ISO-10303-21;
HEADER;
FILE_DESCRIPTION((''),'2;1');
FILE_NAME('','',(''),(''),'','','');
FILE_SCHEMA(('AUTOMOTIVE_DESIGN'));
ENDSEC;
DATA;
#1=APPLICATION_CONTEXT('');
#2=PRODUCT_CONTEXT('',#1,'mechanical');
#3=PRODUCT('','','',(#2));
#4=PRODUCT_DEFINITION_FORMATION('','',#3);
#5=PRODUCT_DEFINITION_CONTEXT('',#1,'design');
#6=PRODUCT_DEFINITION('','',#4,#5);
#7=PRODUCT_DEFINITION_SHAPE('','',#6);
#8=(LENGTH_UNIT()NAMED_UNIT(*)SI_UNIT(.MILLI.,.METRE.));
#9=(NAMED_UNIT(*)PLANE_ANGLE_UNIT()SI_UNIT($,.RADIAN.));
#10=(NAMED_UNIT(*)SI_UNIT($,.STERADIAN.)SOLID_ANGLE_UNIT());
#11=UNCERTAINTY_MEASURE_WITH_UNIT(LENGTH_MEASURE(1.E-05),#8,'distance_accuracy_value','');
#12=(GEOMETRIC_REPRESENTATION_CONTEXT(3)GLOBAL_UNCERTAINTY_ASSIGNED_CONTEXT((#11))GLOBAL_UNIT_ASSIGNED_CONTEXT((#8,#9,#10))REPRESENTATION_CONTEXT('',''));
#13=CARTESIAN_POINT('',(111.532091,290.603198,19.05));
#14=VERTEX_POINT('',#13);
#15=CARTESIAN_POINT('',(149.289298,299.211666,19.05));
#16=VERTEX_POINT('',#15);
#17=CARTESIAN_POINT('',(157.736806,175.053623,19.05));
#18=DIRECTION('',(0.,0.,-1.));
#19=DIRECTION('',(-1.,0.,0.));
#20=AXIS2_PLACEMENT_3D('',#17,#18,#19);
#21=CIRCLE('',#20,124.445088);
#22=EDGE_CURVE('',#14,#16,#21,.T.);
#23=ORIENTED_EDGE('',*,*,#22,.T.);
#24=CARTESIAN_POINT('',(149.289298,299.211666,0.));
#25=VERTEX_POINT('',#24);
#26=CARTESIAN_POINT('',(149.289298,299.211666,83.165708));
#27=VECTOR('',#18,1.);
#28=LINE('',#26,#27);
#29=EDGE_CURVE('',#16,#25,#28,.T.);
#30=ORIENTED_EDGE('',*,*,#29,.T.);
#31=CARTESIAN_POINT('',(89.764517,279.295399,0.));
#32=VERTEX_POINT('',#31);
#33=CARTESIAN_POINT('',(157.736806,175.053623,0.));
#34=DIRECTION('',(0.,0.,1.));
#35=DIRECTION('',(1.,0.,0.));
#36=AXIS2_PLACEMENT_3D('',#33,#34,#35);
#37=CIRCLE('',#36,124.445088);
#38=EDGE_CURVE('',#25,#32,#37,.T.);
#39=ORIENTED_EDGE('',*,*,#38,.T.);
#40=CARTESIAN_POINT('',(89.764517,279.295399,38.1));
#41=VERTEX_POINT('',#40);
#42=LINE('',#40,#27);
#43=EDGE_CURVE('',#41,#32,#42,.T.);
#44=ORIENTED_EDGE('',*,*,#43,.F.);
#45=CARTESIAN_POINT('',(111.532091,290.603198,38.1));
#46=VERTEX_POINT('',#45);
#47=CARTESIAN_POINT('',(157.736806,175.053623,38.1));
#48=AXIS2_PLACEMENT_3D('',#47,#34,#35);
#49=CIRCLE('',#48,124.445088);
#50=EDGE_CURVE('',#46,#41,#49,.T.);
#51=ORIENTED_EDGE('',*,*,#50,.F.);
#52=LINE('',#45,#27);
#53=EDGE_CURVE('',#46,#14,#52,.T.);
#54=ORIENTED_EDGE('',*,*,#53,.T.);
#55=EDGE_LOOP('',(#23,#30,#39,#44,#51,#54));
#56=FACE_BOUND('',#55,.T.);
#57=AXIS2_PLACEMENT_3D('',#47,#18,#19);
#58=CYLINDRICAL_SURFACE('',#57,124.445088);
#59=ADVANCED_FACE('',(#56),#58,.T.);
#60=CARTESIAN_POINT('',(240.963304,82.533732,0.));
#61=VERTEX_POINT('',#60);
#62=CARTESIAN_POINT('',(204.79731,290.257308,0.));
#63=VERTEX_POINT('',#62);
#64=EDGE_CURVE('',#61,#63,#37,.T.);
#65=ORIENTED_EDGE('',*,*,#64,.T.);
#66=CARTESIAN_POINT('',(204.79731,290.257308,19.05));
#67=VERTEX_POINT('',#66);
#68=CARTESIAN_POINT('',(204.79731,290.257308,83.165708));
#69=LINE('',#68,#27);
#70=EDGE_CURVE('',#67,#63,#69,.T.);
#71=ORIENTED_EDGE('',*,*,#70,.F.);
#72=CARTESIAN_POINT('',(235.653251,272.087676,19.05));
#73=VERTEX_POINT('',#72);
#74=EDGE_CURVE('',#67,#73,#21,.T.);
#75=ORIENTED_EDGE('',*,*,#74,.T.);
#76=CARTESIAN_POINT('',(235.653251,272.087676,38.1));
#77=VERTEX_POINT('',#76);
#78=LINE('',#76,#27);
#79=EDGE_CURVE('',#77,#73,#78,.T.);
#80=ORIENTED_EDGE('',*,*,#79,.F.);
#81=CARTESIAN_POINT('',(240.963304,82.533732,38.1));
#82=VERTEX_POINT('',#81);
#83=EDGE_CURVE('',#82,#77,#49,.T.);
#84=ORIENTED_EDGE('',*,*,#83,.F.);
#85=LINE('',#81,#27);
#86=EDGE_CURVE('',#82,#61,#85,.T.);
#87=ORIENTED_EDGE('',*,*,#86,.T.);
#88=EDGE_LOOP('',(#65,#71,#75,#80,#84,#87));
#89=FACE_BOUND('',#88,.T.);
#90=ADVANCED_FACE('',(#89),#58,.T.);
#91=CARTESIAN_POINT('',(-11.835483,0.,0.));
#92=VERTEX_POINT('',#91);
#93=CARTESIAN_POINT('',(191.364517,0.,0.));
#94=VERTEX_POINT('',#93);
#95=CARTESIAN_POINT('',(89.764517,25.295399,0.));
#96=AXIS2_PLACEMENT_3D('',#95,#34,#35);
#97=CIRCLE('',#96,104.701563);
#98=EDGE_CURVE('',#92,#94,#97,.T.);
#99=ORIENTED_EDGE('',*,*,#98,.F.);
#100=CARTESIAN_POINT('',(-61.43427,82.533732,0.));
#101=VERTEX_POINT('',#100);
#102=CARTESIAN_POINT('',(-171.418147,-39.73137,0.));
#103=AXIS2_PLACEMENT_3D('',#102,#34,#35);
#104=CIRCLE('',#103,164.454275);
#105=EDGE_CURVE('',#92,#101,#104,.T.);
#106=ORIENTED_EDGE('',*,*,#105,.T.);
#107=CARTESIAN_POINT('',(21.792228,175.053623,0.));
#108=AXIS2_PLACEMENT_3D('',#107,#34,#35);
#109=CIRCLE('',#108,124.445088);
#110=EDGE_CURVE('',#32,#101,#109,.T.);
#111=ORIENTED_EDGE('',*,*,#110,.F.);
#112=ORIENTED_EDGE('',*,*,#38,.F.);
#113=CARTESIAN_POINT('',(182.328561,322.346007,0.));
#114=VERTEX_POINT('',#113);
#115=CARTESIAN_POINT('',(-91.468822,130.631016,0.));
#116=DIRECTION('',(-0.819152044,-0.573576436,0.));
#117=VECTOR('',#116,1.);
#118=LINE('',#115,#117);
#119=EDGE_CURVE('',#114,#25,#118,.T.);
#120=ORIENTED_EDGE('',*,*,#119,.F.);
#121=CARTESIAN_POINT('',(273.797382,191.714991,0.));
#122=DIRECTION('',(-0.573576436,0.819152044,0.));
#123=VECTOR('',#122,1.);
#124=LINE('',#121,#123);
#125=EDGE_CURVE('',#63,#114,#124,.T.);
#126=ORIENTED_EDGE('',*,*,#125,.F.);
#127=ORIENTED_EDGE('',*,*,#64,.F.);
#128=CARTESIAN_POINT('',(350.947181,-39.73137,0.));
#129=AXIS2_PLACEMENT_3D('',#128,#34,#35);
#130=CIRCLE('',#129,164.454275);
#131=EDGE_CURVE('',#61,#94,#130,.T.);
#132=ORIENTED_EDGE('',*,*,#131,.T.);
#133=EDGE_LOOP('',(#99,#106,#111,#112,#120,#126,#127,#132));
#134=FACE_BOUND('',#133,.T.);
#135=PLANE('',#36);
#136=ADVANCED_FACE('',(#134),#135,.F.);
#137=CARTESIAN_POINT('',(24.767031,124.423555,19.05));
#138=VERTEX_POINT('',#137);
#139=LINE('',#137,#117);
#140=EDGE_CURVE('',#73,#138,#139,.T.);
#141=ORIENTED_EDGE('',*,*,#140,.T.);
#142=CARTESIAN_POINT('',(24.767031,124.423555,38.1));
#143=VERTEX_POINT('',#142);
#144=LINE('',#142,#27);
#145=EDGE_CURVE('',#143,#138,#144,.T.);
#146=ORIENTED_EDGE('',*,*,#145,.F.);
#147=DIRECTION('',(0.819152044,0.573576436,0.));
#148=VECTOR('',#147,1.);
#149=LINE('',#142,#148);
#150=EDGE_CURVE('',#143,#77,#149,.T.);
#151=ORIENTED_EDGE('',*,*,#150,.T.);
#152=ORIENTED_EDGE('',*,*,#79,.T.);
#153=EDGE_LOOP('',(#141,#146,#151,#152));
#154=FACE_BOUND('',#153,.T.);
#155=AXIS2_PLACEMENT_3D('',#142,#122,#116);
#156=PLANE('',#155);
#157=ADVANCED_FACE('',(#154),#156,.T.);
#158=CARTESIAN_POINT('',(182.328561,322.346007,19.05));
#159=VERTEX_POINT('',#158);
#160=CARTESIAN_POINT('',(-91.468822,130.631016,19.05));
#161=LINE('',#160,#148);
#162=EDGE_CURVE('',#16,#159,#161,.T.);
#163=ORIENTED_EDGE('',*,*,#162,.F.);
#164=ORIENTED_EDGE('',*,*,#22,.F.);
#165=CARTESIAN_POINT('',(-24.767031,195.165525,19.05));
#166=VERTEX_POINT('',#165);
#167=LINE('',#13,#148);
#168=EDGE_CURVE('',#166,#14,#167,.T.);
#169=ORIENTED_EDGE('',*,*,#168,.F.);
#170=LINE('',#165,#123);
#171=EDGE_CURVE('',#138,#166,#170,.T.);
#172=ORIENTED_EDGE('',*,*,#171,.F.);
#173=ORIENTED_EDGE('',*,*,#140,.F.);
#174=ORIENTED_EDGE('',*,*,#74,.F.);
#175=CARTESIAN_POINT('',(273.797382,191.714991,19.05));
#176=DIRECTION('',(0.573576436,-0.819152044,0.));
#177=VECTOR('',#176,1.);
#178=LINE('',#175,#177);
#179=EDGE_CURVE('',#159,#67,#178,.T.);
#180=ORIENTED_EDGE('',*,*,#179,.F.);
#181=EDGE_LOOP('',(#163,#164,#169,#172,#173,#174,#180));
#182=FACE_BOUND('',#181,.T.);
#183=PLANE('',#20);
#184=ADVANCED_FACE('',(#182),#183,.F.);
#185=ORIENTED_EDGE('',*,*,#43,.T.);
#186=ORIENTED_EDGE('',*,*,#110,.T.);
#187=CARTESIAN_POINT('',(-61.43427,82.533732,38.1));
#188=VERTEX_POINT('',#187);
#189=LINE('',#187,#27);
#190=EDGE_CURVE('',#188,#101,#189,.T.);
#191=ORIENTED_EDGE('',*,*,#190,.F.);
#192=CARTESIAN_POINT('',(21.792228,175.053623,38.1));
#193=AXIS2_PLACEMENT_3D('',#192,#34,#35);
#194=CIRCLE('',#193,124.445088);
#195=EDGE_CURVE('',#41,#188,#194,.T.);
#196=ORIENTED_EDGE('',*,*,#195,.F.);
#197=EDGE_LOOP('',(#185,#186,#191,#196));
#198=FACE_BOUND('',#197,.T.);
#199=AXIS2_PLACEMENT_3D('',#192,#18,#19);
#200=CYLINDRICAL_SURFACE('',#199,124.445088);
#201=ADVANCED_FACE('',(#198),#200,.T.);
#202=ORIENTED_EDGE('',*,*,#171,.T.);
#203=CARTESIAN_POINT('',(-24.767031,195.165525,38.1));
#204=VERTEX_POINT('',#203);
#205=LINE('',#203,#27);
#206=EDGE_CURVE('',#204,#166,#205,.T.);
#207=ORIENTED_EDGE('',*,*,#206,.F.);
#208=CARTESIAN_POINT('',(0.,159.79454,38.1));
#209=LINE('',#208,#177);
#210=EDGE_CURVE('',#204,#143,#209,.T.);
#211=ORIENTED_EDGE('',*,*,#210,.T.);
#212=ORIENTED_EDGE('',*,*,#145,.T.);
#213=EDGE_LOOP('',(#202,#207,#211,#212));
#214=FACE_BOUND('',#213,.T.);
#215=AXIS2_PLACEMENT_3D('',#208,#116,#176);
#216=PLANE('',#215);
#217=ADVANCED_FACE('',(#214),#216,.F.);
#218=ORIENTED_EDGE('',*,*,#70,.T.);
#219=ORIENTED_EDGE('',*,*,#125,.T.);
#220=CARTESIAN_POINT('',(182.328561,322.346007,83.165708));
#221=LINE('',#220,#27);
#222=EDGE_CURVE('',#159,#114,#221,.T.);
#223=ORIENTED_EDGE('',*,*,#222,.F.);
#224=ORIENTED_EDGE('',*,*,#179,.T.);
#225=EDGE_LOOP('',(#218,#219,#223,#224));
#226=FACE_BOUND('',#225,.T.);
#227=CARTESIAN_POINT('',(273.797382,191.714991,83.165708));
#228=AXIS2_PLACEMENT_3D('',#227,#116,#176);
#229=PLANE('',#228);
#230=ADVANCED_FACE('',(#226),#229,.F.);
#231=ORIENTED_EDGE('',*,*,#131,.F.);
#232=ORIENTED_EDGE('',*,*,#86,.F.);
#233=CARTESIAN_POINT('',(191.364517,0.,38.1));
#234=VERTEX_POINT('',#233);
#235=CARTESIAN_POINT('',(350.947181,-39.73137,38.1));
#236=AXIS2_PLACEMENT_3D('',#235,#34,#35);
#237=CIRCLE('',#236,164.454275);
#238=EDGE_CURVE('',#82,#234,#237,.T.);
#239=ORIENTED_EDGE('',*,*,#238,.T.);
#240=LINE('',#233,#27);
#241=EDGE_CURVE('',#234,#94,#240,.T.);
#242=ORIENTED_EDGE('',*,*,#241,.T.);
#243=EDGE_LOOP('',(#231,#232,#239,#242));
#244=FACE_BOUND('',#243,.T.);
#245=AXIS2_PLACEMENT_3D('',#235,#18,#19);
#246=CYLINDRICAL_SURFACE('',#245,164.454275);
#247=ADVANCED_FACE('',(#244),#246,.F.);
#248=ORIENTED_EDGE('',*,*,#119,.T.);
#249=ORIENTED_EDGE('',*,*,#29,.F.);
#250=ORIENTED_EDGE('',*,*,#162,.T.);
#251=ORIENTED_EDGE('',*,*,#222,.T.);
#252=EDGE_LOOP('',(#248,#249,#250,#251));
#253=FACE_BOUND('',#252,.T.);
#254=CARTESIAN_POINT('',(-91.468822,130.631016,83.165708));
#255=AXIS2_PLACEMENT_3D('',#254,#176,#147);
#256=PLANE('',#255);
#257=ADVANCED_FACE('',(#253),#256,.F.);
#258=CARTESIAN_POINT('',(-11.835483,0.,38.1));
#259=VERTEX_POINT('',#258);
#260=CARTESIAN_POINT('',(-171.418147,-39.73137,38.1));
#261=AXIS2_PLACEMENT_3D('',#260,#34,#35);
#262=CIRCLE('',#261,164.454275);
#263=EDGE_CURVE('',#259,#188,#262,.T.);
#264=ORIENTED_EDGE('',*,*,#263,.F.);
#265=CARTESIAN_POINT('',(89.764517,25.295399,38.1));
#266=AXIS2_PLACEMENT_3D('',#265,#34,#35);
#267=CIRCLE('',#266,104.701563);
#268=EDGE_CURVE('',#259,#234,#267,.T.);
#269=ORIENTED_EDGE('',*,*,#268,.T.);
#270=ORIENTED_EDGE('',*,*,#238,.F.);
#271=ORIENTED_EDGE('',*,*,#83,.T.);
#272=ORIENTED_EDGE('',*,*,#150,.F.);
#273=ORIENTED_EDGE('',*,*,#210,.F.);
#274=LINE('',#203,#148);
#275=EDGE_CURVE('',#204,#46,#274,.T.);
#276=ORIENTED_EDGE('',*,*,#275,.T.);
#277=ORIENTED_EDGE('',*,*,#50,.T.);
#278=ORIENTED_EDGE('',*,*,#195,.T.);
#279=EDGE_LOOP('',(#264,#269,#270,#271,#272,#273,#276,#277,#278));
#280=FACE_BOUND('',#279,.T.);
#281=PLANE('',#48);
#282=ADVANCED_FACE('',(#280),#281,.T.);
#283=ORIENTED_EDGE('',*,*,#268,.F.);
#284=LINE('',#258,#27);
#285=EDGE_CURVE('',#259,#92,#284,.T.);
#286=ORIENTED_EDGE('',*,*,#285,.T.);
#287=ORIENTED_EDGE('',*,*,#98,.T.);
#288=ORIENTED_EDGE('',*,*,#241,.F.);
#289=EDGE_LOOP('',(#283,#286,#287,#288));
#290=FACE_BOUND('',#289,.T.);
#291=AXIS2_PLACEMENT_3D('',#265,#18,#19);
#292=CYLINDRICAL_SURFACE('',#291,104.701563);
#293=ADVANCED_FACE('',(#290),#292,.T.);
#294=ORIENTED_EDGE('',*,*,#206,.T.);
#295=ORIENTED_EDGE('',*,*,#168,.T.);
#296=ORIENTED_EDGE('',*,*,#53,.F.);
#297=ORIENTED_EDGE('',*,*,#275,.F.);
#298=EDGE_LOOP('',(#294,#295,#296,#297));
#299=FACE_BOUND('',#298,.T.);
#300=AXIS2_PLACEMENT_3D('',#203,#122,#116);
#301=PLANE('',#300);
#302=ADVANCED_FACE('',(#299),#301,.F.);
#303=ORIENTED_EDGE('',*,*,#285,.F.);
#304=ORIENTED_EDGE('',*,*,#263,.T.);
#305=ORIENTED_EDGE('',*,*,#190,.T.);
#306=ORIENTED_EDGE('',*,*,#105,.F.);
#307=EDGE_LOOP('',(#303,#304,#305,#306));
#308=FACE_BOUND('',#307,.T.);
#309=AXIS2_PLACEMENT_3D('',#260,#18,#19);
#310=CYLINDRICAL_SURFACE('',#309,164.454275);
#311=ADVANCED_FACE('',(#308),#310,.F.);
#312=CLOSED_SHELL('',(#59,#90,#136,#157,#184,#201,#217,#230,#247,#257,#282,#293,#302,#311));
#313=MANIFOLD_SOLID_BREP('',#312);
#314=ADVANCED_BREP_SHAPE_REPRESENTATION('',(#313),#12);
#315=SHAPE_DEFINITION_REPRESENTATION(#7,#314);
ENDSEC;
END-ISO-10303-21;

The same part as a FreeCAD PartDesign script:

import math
import FreeCAD as App
import Part
import Sketcher
Q = App.Units.Quantity

doc = App.newDocument("Part")
body = doc.addObject("PartDesign::Body", "Body")

# Sketch on XY plane
sketch1 = body.newObject("Sketcher::SketchObject", "Sketch")
sketch1.AttachmentSupport = (doc.getObject("XY_Plane"), [""])
sketch1.MapMode = "FlatFace"
sketch1.addGeometry([
    Part.LineSegment(App.Vector(24.767031, 124.423555, 0), App.Vector(0, 159.79454, 0)),  # 0
    Part.LineSegment(App.Vector(0, 159.79454, 0), App.Vector(-24.767031, 195.165525, 0)),  # 1
    Part.LineSegment(App.Vector(-24.767031, 195.165525, 0), App.Vector(111.532091, 290.603198, 0)),  # 2
    Part.ArcOfCircle(Part.Circle(App.Vector(157.736806, 175.053623, 0), App.Vector(0, 0, 1), 124.445088), math.radians(111.794948), math.radians(123.106915)),  # 3
    Part.ArcOfCircle(Part.Circle(App.Vector(21.792228, 175.053623, 0), App.Vector(0, 0, 1), 124.445088), math.radians(56.893085), math.radians(228.026957)),  # 4
    Part.ArcOfCircle(Part.Circle(App.Vector(-171.418147, -39.73137, 0), App.Vector(0, 0, 1), 164.454275), math.radians(13.980712), math.radians(48.026957)),  # 5
    Part.ArcOfCircle(Part.Circle(App.Vector(89.764517, 25.295399, 0), App.Vector(0, 0, 1), 104.701563), math.radians(-166.019288), math.radians(-13.980712)),  # 6
    Part.ArcOfCircle(Part.Circle(App.Vector(350.947181, -39.73137, 0), App.Vector(0, 0, 1), 164.454275), math.radians(131.973043), math.radians(166.019288)),  # 7
    Part.ArcOfCircle(Part.Circle(App.Vector(157.736806, 175.053623, 0), App.Vector(0, 0, 1), 124.445088), math.radians(-48.026957), math.radians(51.236218)),  # 8
    Part.LineSegment(App.Vector(235.653251, 272.087676, 0), App.Vector(24.767031, 124.423555, 0)),  # 9
], False)
sketch1.addConstraint([
    Sketcher.Constraint("Coincident", 0, 2, 1, 1),
    Sketcher.Constraint("Coincident", 1, 2, 2, 1),
    Sketcher.Constraint("Coincident", 2, 2, 3, 1),
    Sketcher.Constraint("Coincident", 3, 2, 4, 1),
    Sketcher.Constraint("Tangent", 4, 2, 5, 2),
    Sketcher.Constraint("Tangent", 5, 1, 6, 1),
    Sketcher.Constraint("Tangent", 6, 2, 7, 2),
    Sketcher.Constraint("Tangent", 7, 1, 8, 1),
    Sketcher.Constraint("Coincident", 8, 2, 9, 1),
    Sketcher.Constraint("Coincident", 9, 2, 0, 1),
    Sketcher.Constraint("Coincident", 8, 3, 3, 3),
    Sketcher.Constraint("Equal", 3, 4),
    Sketcher.Constraint("Equal", 5, 7),
    Sketcher.Constraint("Equal", 4, 8),
    Sketcher.Constraint("PointOnObject", 0, 2, -2),
    Sketcher.Constraint("PointOnObject", 5, 1, -1),
    Sketcher.Constraint("PointOnObject", 6, 2, -1),
    Sketcher.Constraint("Parallel", 0, 1),
    Sketcher.Constraint("Perpendicular", 1, 2),
    Sketcher.Constraint("Parallel", 2, 9),
    Sketcher.Constraint("Horizontal", 3, 3, 4, 3),
    Sketcher.Constraint("Equal", 0, 1),
    Sketcher.Constraint("Angle", 0, Q("125 deg")),
    Sketcher.Constraint("DistanceX", 5, 1, 6, 3, Q("4 in")),
    Sketcher.Constraint("Distance", 0, Q("1.7 in")),
    Sketcher.Constraint("Radius", 3, Q("124.445088 mm")),
    Sketcher.Constraint("Radius", 5, Q("164.454275 mm")),
    Sketcher.Constraint("Radius", 6, Q("104.701563 mm")),
    Sketcher.Constraint("DistanceY", 3, 2, 2, 2, Q("11.307799 mm")),
    Sketcher.Constraint("DistanceX", 4, 2, 9, 2, Q("86.2013 mm")),
    Sketcher.Constraint("Distance", 9, Q("257.444539 mm")),
])
pad1 = body.newObject("PartDesign::Pad", "Pad")
pad1.Profile = sketch1
pad1.Length = Q("1.5 in")
body2 = doc.addObject("PartDesign::Body", "Body001")

# Sketch on XY plane
sketch2 = body2.newObject("Sketcher::SketchObject", "Sketch001")
sketch2.AttachmentSupport = (doc.getObject("XY_Plane001"), [""])
sketch2.MapMode = "FlatFace"
sketch2.addGeometry([
    Part.LineSegment(App.Vector(24.767031, 124.423555, 0), App.Vector(-24.767031, 195.165525, 0)),
    Part.LineSegment(App.Vector(-24.767031, 195.165525, 0), App.Vector(111.532091, 290.603198, 0)),
    Part.ArcOfCircle(Part.Circle(App.Vector(157.736806, 175.053623, 0), App.Vector(0, 0, 1), 124.445088), math.radians(51.236218), math.radians(111.794948)),
    Part.LineSegment(App.Vector(235.653251, 272.087676, 0), App.Vector(24.767031, 124.423555, 0)),
], False)
sketch2.addConstraint([
    Sketcher.Constraint("Coincident", 0, 2, 1, 1),
    Sketcher.Constraint("Coincident", 1, 2, 2, 2),
    Sketcher.Constraint("Coincident", 2, 1, 3, 1),
    Sketcher.Constraint("Coincident", 3, 2, 0, 1),
    Sketcher.Constraint("Perpendicular", 0, 1),
    Sketcher.Constraint("Parallel", 1, 3),
    Sketcher.Constraint("Angle", 0, Q("125 deg")),
    Sketcher.Constraint("Distance", 0, Q("3.4 in")),
    Sketcher.Constraint("Radius", 2, Q("124.445088 mm")),
    Sketcher.Constraint("Distance", 3, Q("257.444539 mm")),
    Sketcher.Constraint("DistanceX", 0, 2, -1, 1, Q("24.767031 mm")),
    Sketcher.Constraint("DistanceX", -1, 1, 1, 2, Q("111.532091 mm")),
    Sketcher.Constraint("DistanceY", -1, 1, 2, 3, Q("175.053623 mm")),
])
pad2 = body2.newObject("PartDesign::Pad", "Pad001")
pad2.Profile = sketch2
pad2.Length = Q("0.75 in")
doc.recompute()

boolean = body.newObject("PartDesign::Boolean", "Boolean")
boolean.Type = "Fuse"
boolean.addObjects([body2])

# Sketch on XY plane
sketch3 = body.newObject("Sketcher::SketchObject", "Sketch002")
sketch3.AttachmentSupport = (doc.getObject("XY_Plane"), [""])
sketch3.MapMode = "FlatFace"
sketch3.addGeometry([
    Part.LineSegment(App.Vector(215.108454, 275.531467, 0), App.Vector(152.689068, 231.824943, 0)),
    Part.LineSegment(App.Vector(152.689068, 231.824943, 0), App.Vector(119.909175, 278.639482, 0)),
    Part.LineSegment(App.Vector(119.909175, 278.639482, 0), App.Vector(182.328561, 322.346007, 0)),
    Part.LineSegment(App.Vector(182.328561, 322.346007, 0), App.Vector(215.108454, 275.531467, 0)),
], False)
sketch3.addConstraint([
    Sketcher.Constraint("Coincident", 0, 2, 1, 1),
    Sketcher.Constraint("Coincident", 1, 2, 2, 1),
    Sketcher.Constraint("Coincident", 2, 2, 3, 1),
    Sketcher.Constraint("Coincident", 3, 2, 0, 1),
    Sketcher.Constraint("Perpendicular", 0, 1),
    Sketcher.Constraint("Perpendicular", 1, 2),
    Sketcher.Constraint("Perpendicular", 2, 3),
    Sketcher.Constraint("Distance", 0, Q("3 in")),
    Sketcher.Constraint("Angle", 0, Q("-145 deg")),
    Sketcher.Constraint("Distance", 1, Q("2.25 in")),
    Sketcher.Constraint("DistanceX", -1, 1, 0, 2, Q("152.689068 mm")),
    Sketcher.Constraint("DistanceY", -1, 1, 0, 2, Q("231.824943 mm")),
])
pad3 = body.newObject("PartDesign::Pad", "Pad002")
pad3.Profile = sketch3
pad3.Length = Q("0.75 in")

doc.recompute()
